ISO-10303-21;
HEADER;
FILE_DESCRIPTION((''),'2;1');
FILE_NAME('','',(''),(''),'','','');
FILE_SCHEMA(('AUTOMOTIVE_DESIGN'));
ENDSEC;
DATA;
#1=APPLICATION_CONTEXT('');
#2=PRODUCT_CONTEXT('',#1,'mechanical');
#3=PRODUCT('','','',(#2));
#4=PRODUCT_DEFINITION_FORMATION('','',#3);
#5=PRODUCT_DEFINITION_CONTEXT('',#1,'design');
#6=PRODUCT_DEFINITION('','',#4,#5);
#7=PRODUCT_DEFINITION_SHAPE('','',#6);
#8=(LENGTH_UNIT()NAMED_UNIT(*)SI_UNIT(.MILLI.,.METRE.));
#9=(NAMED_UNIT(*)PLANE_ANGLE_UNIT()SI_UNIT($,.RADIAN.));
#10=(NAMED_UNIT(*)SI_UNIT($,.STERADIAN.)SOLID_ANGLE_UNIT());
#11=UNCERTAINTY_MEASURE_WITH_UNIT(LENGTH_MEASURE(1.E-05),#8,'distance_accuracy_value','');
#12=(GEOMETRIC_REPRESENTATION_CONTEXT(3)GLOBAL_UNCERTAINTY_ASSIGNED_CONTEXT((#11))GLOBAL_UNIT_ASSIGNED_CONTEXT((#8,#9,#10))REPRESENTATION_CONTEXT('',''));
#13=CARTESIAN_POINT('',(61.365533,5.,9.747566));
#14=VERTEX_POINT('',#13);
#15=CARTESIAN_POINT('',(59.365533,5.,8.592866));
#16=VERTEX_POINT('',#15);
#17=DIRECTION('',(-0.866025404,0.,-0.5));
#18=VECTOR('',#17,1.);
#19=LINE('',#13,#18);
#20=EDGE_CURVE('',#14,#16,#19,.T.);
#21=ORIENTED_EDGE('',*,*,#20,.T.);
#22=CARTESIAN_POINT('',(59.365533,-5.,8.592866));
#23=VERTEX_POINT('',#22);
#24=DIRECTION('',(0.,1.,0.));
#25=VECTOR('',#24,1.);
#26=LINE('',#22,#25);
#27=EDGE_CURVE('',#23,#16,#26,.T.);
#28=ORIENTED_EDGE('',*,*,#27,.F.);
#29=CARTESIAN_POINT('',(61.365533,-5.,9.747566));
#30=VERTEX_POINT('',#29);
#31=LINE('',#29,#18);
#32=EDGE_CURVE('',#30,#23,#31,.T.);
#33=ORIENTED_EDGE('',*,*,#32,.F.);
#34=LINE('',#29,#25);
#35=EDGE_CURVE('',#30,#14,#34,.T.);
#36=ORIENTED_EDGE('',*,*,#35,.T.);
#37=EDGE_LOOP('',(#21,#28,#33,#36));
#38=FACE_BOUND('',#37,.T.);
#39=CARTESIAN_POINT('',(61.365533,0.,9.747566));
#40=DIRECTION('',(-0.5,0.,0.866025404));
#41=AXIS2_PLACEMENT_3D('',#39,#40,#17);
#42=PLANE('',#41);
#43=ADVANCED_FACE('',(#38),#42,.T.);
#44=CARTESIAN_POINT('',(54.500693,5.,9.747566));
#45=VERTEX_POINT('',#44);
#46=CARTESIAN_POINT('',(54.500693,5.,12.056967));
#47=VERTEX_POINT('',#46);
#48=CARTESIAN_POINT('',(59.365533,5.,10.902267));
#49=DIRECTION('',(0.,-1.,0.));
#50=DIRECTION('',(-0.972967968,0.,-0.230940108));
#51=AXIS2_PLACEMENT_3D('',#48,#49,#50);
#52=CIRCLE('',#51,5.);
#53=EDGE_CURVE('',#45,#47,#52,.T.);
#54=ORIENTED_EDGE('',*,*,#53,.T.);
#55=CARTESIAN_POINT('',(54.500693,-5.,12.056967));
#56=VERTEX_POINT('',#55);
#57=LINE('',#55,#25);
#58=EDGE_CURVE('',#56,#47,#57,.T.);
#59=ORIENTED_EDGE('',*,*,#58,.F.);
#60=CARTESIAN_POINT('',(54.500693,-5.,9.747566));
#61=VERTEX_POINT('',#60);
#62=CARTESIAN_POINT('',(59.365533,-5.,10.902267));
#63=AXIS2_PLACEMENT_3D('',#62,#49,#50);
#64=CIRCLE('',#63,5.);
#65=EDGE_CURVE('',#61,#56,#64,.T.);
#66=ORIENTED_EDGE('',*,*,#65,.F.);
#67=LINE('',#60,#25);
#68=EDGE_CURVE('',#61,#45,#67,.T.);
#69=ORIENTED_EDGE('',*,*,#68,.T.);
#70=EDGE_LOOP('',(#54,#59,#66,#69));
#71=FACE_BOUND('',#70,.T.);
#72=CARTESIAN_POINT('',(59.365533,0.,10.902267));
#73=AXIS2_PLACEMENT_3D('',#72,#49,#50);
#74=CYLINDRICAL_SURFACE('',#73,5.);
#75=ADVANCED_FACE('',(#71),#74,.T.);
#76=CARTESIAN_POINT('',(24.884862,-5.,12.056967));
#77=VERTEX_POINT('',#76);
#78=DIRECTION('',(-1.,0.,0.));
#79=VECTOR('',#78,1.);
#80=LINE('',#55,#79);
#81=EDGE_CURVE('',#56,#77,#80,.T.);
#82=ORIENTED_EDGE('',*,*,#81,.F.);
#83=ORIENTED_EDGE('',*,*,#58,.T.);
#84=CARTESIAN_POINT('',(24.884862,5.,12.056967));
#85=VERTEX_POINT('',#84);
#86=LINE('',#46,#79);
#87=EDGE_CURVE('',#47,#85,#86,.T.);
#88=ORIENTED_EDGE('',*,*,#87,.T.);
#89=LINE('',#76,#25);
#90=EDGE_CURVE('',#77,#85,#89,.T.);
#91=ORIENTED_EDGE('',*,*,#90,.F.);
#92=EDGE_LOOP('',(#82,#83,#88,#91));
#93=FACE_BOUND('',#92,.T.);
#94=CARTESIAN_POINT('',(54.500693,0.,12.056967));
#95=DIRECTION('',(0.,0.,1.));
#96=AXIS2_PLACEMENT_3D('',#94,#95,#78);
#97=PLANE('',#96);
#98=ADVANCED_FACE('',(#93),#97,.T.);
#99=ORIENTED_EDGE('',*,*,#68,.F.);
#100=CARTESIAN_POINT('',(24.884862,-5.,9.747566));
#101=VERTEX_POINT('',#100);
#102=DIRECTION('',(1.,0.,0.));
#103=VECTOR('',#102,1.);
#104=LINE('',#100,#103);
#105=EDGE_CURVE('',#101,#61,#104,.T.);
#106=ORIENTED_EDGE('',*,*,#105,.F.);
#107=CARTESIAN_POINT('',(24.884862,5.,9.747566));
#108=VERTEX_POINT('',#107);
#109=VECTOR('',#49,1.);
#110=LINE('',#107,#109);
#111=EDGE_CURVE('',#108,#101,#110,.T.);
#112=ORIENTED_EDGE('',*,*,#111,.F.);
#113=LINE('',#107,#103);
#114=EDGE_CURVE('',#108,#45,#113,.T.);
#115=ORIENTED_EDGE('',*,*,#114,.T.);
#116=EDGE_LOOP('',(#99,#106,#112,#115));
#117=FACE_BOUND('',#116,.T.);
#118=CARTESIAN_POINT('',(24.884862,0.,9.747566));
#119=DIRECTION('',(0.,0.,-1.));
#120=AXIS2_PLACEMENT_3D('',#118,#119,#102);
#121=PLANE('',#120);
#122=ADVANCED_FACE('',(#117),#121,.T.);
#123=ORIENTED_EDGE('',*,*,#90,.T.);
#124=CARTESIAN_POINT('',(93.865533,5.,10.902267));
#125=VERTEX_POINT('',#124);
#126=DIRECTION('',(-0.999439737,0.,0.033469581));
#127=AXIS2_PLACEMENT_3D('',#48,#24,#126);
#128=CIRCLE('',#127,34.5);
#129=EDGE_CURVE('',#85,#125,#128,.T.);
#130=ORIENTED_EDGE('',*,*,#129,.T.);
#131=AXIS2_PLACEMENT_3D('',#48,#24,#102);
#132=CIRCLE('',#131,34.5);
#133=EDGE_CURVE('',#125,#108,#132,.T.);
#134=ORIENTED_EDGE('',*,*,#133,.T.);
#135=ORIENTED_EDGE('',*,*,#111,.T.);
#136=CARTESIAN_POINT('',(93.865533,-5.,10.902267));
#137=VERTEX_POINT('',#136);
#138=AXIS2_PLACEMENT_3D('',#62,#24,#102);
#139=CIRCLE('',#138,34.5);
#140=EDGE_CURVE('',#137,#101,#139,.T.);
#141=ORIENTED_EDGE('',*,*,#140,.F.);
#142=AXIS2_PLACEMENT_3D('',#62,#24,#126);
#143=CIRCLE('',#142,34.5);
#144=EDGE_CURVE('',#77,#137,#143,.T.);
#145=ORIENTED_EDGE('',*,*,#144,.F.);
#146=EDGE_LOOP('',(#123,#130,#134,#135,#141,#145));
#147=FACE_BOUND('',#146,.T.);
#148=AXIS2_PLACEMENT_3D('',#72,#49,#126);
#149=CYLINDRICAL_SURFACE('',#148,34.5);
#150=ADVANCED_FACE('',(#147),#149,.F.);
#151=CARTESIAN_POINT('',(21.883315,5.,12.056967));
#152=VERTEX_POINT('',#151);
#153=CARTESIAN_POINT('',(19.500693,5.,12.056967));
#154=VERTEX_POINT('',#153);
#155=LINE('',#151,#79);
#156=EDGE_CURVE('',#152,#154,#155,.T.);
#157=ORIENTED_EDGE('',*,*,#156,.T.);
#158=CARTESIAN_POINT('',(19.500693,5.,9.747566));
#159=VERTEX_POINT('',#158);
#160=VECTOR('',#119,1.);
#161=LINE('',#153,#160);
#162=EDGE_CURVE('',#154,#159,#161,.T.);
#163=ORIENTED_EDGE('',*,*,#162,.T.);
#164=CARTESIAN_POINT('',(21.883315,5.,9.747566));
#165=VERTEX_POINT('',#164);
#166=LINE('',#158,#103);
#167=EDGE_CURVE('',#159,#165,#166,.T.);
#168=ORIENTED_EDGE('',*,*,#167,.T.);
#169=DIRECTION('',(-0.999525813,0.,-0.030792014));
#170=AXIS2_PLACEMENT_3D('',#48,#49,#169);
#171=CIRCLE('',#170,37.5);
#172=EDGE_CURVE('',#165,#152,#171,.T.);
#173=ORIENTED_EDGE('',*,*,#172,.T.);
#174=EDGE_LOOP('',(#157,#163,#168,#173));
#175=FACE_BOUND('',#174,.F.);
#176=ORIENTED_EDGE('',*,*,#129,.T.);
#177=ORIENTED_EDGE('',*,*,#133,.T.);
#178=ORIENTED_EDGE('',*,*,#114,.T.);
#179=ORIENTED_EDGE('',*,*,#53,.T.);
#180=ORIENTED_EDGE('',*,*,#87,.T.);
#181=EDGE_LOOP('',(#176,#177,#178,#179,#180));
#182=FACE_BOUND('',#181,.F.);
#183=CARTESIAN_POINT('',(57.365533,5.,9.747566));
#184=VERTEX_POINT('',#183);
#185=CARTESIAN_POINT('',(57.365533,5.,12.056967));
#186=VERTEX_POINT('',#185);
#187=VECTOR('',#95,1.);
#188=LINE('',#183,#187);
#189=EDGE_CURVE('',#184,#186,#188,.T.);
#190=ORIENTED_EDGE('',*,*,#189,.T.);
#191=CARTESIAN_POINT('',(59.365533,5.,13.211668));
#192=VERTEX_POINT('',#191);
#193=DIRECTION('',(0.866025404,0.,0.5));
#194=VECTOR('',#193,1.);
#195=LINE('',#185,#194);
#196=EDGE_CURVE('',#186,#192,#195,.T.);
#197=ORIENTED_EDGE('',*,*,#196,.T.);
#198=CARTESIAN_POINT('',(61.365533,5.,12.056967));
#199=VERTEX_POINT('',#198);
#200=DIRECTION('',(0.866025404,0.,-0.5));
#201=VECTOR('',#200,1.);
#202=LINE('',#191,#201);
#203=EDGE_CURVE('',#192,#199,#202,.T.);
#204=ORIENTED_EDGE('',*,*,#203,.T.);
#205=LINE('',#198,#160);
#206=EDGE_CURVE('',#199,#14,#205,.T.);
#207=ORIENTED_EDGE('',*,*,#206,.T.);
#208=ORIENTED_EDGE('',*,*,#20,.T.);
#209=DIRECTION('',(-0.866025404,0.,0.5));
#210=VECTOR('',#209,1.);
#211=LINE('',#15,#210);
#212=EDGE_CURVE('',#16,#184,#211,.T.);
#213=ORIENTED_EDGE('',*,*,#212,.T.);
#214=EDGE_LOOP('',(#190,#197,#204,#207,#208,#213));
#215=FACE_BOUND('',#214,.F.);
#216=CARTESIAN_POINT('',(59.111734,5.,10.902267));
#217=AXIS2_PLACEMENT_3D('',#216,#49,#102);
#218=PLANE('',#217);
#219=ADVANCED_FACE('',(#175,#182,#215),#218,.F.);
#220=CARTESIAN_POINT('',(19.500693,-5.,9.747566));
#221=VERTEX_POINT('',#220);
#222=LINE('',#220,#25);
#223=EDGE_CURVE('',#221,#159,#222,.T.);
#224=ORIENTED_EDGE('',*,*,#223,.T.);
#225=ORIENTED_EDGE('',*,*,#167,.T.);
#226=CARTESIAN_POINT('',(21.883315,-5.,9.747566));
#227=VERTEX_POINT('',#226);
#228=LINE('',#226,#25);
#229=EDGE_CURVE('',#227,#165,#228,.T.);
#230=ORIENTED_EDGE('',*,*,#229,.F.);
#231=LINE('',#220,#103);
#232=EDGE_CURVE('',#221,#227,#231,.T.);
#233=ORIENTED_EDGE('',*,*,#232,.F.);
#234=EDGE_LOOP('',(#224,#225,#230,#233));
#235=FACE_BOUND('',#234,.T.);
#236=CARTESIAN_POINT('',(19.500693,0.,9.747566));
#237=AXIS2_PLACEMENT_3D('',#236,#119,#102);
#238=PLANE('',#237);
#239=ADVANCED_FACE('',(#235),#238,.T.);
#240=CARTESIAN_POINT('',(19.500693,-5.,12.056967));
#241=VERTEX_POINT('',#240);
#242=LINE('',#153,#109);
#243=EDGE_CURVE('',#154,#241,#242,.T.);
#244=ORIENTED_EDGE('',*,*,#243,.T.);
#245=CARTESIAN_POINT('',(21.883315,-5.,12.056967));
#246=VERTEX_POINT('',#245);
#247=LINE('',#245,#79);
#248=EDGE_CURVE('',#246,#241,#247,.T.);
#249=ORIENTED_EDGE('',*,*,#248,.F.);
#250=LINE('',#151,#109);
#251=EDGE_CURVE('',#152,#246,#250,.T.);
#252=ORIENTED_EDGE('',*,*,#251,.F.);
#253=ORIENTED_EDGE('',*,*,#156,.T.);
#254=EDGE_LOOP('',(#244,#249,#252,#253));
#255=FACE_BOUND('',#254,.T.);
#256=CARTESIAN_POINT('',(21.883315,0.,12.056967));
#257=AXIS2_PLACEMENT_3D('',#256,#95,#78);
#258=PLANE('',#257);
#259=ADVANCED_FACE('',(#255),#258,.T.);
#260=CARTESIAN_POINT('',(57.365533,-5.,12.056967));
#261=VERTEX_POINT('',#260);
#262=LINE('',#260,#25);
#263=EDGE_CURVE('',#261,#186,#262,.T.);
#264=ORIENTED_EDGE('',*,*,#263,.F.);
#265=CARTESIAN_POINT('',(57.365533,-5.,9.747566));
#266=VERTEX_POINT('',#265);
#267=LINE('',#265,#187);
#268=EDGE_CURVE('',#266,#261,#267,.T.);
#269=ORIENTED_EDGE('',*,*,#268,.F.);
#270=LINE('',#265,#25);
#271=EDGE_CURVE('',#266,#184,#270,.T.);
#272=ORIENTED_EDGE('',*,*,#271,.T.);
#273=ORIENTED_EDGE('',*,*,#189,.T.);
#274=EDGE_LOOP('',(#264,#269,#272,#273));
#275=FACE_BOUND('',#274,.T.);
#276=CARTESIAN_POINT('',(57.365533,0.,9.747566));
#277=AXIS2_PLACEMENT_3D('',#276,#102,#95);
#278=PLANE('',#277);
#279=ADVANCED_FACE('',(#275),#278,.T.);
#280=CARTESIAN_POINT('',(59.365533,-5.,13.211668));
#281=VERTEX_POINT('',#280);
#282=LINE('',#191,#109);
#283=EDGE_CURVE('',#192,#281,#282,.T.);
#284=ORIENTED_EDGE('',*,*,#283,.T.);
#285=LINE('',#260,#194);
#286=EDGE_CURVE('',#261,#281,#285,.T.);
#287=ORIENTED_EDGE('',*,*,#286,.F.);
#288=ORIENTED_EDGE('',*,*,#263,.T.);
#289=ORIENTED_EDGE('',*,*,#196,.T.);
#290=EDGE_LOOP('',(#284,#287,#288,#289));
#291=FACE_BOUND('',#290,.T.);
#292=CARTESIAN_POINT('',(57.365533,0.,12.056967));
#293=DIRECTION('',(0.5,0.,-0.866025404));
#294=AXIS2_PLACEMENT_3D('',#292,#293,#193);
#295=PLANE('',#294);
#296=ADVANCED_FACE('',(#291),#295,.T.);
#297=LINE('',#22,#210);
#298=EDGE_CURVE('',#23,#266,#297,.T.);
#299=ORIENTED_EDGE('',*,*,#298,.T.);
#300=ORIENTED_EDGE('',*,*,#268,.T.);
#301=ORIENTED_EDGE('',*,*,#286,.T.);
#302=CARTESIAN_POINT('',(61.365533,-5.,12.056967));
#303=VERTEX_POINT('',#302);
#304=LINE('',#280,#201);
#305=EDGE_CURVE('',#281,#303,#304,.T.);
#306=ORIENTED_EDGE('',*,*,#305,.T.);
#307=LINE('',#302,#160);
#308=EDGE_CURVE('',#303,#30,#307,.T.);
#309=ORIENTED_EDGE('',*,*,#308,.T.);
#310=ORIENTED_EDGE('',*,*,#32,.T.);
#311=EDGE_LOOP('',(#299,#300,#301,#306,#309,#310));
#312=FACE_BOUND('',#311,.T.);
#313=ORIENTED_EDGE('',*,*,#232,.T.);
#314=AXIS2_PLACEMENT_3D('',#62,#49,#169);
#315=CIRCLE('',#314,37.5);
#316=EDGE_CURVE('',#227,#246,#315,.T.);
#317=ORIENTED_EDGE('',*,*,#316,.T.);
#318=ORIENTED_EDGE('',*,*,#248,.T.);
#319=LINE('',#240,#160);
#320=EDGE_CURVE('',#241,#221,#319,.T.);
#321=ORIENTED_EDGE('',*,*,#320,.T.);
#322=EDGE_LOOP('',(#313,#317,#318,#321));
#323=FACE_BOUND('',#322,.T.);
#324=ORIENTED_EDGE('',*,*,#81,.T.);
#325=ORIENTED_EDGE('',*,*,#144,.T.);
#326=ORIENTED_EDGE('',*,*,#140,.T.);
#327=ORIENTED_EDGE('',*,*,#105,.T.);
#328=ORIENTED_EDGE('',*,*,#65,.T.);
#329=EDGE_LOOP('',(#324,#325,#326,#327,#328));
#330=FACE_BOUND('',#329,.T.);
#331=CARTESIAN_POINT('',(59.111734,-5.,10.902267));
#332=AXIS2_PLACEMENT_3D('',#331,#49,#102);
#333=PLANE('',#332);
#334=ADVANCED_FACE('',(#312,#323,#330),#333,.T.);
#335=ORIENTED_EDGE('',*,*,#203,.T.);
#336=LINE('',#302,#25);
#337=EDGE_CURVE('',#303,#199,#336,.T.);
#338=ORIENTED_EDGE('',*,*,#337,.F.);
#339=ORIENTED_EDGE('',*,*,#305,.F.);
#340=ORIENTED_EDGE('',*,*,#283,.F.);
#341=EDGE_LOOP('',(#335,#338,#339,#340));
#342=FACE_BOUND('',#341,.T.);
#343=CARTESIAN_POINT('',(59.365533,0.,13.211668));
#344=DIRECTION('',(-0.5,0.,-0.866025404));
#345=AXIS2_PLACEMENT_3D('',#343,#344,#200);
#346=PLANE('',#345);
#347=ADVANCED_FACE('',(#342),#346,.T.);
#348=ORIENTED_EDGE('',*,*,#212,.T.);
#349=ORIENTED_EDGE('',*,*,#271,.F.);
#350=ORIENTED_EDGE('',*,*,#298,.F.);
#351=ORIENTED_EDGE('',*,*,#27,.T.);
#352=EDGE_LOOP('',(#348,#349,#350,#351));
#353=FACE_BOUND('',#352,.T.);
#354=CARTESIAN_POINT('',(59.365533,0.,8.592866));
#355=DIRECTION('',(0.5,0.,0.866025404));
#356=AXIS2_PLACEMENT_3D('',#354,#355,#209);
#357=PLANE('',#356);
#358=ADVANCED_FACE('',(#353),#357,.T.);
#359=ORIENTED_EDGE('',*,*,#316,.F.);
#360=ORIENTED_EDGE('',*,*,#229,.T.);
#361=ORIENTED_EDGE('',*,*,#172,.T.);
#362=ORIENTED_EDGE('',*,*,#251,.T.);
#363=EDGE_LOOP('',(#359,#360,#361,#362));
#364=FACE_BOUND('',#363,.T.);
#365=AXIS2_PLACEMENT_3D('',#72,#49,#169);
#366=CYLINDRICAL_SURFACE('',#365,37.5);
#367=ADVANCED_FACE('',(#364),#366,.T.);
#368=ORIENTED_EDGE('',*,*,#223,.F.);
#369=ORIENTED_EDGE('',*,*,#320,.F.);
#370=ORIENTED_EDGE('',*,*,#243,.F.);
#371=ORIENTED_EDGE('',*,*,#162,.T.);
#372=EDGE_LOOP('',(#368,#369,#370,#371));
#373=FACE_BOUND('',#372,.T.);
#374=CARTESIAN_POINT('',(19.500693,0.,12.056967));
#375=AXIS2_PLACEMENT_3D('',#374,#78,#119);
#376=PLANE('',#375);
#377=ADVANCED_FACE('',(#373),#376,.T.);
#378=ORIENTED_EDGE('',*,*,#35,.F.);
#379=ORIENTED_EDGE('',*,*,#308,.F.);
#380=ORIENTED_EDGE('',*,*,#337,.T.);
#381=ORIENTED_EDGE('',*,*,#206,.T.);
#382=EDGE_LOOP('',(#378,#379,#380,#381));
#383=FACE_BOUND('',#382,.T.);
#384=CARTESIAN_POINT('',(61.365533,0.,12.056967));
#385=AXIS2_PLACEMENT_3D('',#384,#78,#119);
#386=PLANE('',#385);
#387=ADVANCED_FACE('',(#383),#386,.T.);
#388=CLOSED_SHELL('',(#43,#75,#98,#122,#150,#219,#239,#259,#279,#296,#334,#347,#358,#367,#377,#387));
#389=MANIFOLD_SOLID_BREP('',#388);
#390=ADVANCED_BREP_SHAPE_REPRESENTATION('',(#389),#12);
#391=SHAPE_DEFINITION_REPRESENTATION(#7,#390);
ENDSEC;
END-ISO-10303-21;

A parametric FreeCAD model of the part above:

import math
import FreeCAD as App
import Part
import Sketcher
Q = App.Units.Quantity

doc = App.newDocument("Part")
body = doc.addObject("PartDesign::Body", "Body")

# Sketch on XZ plane
sketch1 = body.newObject("Sketcher::SketchObject", "Sketch")
sketch1.AttachmentSupport = (doc.getObject("XZ_Plane"), [""])
sketch1.MapMode = "FlatFace"
sketch1.addGeometry(Part.ArcOfCircle(Part.Circle(App.Vector(59.4, 10.9, 0), App.Vector(0, 0, 1), 37.5), math.radians(-178), math.radians(178)), False)
sketch1.addGeometry(Part.LineSegment(App.Vector(21.9, 12.1, 0), App.Vector(19.5, 12.1, 0)), False)
sketch1.addGeometry(Part.LineSegment(App.Vector(19.5, 12.1, 0), App.Vector(19.5, 9.7, 0)), False)
sketch1.addGeometry(Part.LineSegment(App.Vector(19.5, 9.7, 0), App.Vector(21.9, 9.7, 0)), False)
sketch1.addGeometry(Part.LineSegment(App.Vector(57.4, 12.1, 0), App.Vector(59.4, 13.2, 0)), False)
sketch1.addGeometry(Part.LineSegment(App.Vector(59.4, 13.2, 0), App.Vector(61.4, 12.1, 0)), False)
sketch1.addGeometry(Part.LineSegment(App.Vector(61.4, 12.1, 0), App.Vector(61.4, 9.7, 0)), False)
sketch1.addGeometry(Part.LineSegment(App.Vector(61.4, 9.7, 0), App.Vector(59.4, 8.6, 0)), False)
sketch1.addGeometry(Part.LineSegment(App.Vector(59.4, 8.6, 0), App.Vector(57.4, 9.7, 0)), False)
sketch1.addGeometry(Part.LineSegment(App.Vector(57.4, 9.7, 0), App.Vector(57.4, 12.1, 0)), False)
sketch1.addGeometry(Part.ArcOfCircle(Part.Circle(App.Vector(59.4, 10.9, 0), App.Vector(0, 0, 1), 34.5), math.radians(0), math.radians(178)), False)
sketch1.addGeometry(Part.ArcOfCircle(Part.Circle(App.Vector(59.4, 10.9, 0), App.Vector(0, 0, 1), 34.5), math.radians(-178), math.radians(0)), False)
sketch1.addGeometry(Part.LineSegment(App.Vector(24.9, 9.7, 0), App.Vector(54.5, 9.7, 0)), False)
sketch1.addGeometry(Part.ArcOfCircle(Part.Circle(App.Vector(59.4, 10.9, 0), App.Vector(0, 0, 1), 5), math.radians(-167), math.radians(167)), False)
sketch1.addGeometry(Part.LineSegment(App.Vector(54.5, 12.1, 0), App.Vector(24.9, 12.1, 0)), False)
sketch1.addConstraint(Sketcher.Constraint("Coincident", 0, 2, 1, 1))
sketch1.addConstraint(Sketcher.Constraint("Coincident", 1, 2, 2, 1))
sketch1.addConstraint(Sketcher.Constraint("Coincident", 2, 2, 3, 1))
sketch1.addConstraint(Sketcher.Constraint("Coincident", 3, 2, 0, 1))
sketch1.addConstraint(Sketcher.Constraint("Coincident", 4, 2, 5, 1))
sketch1.addConstraint(Sketcher.Constraint("Coincident", 5, 2, 6, 1))
sketch1.addConstraint(Sketcher.Constraint("Coincident", 6, 2, 7, 1))
sketch1.addConstraint(Sketcher.Constraint("Coincident", 7, 2, 8, 1))
sketch1.addConstraint(Sketcher.Constraint("Coincident", 8, 2, 9, 1))
sketch1.addConstraint(Sketcher.Constraint("Coincident", 9, 2, 4, 1))
sketch1.addConstraint(Sketcher.Constraint("Tangent", 10, 1, 11, 2))
sketch1.addConstraint(Sketcher.Constraint("Coincident", 11, 1, 12, 1))
sketch1.addConstraint(Sketcher.Constraint("Coincident", 12, 2, 13, 1))
sketch1.addConstraint(Sketcher.Constraint("Coincident", 13, 2, 14, 1))
sketch1.addConstraint(Sketcher.Constraint("Coincident", 14, 2, 10, 2))
sketch1.addConstraint(Sketcher.Constraint("Horizontal", 1))
sketch1.addConstraint(Sketcher.Constraint("Vertical", 2))
sketch1.addConstraint(Sketcher.Constraint("Horizontal", 3))
sketch1.addConstraint(Sketcher.Constraint("Vertical", 6))
sketch1.addConstraint(Sketcher.Constraint("Vertical", 9))
sketch1.addConstraint(Sketcher.Constraint("Horizontal", 12))
sketch1.addConstraint(Sketcher.Constraint("Horizontal", 14))
sketch1.addConstraint(Sketcher.Constraint("Coincident", 10, 3, 0, 3))
sketch1.addConstraint(Sketcher.Constraint("Coincident", 13, 3, 0, 3))
sketch1.addConstraint(Sketcher.Constraint("Equal", 10, 11))
sketch1.addConstraint(Sketcher.Constraint("Parallel", 4, 7))
sketch1.addConstraint(Sketcher.Constraint("Parallel", 5, 8))
sketch1.addConstraint(Sketcher.Constraint("Horizontal", 1, 2, 5, 2))
sketch1.addConstraint(Sketcher.Constraint("Horizontal", 3, 2, 6, 2))
sketch1.addConstraint(Sketcher.Constraint("Horizontal", 6, 2, 8, 2))
sketch1.addConstraint(Sketcher.Constraint("Horizontal", 5, 2, 9, 2))
sketch1.addConstraint(Sketcher.Constraint("Horizontal", 13, 3, 10, 1))
sketch1.addConstraint(Sketcher.Constraint("Horizontal", 8, 2, 11, 1))
sketch1.addConstraint(Sketcher.Constraint("Horizontal", 9, 2, 13, 2))
sketch1.addConstraint(Sketcher.Constraint("Vertical", 0, 2, 3, 2))
sketch1.addConstraint(Sketcher.Constraint("Vertical", 13, 3, 4, 2))
sketch1.addConstraint(Sketcher.Constraint("Vertical", 4, 2, 7, 2))
sketch1.addConstraint(Sketcher.Constraint("Radius", 13, Q("5 mm")))
sketch1.addConstraint(Sketcher.Constraint("Radius", 0, Q("37.5 mm")))
sketch1.addConstraint(Sketcher.Constraint("Radius", 10, Q("34.5 mm")))
sketch1.addConstraint(Sketcher.Constraint("Angle", 4, Q("30 deg")))
sketch1.addConstraint(Sketcher.Constraint("DistanceX", 4, 2, 5, 2, Q("2 mm")))
sketch1.addConstraint(Sketcher.Constraint("DistanceY", 2, 2, 2, 1, Q("2.309401 mm")))
sketch1.addConstraint(Sketcher.Constraint("DistanceX", 1, 2, 1, 1, Q("2.382622 mm")))
sketch1.addConstraint(Sketcher.Constraint("DistanceY", -1, 1, 4, 2, Q("13.211668 mm")))
sketch1.addConstraint(Sketcher.Constraint("DistanceX", -1, 1, 11, 1, Q("24.884862 mm")))
pad1 = body.newObject("PartDesign::Pad", "Pad")
pad1.Profile = sketch1
pad1.Length = 10
pad1.Midplane = True

doc.recompute()
